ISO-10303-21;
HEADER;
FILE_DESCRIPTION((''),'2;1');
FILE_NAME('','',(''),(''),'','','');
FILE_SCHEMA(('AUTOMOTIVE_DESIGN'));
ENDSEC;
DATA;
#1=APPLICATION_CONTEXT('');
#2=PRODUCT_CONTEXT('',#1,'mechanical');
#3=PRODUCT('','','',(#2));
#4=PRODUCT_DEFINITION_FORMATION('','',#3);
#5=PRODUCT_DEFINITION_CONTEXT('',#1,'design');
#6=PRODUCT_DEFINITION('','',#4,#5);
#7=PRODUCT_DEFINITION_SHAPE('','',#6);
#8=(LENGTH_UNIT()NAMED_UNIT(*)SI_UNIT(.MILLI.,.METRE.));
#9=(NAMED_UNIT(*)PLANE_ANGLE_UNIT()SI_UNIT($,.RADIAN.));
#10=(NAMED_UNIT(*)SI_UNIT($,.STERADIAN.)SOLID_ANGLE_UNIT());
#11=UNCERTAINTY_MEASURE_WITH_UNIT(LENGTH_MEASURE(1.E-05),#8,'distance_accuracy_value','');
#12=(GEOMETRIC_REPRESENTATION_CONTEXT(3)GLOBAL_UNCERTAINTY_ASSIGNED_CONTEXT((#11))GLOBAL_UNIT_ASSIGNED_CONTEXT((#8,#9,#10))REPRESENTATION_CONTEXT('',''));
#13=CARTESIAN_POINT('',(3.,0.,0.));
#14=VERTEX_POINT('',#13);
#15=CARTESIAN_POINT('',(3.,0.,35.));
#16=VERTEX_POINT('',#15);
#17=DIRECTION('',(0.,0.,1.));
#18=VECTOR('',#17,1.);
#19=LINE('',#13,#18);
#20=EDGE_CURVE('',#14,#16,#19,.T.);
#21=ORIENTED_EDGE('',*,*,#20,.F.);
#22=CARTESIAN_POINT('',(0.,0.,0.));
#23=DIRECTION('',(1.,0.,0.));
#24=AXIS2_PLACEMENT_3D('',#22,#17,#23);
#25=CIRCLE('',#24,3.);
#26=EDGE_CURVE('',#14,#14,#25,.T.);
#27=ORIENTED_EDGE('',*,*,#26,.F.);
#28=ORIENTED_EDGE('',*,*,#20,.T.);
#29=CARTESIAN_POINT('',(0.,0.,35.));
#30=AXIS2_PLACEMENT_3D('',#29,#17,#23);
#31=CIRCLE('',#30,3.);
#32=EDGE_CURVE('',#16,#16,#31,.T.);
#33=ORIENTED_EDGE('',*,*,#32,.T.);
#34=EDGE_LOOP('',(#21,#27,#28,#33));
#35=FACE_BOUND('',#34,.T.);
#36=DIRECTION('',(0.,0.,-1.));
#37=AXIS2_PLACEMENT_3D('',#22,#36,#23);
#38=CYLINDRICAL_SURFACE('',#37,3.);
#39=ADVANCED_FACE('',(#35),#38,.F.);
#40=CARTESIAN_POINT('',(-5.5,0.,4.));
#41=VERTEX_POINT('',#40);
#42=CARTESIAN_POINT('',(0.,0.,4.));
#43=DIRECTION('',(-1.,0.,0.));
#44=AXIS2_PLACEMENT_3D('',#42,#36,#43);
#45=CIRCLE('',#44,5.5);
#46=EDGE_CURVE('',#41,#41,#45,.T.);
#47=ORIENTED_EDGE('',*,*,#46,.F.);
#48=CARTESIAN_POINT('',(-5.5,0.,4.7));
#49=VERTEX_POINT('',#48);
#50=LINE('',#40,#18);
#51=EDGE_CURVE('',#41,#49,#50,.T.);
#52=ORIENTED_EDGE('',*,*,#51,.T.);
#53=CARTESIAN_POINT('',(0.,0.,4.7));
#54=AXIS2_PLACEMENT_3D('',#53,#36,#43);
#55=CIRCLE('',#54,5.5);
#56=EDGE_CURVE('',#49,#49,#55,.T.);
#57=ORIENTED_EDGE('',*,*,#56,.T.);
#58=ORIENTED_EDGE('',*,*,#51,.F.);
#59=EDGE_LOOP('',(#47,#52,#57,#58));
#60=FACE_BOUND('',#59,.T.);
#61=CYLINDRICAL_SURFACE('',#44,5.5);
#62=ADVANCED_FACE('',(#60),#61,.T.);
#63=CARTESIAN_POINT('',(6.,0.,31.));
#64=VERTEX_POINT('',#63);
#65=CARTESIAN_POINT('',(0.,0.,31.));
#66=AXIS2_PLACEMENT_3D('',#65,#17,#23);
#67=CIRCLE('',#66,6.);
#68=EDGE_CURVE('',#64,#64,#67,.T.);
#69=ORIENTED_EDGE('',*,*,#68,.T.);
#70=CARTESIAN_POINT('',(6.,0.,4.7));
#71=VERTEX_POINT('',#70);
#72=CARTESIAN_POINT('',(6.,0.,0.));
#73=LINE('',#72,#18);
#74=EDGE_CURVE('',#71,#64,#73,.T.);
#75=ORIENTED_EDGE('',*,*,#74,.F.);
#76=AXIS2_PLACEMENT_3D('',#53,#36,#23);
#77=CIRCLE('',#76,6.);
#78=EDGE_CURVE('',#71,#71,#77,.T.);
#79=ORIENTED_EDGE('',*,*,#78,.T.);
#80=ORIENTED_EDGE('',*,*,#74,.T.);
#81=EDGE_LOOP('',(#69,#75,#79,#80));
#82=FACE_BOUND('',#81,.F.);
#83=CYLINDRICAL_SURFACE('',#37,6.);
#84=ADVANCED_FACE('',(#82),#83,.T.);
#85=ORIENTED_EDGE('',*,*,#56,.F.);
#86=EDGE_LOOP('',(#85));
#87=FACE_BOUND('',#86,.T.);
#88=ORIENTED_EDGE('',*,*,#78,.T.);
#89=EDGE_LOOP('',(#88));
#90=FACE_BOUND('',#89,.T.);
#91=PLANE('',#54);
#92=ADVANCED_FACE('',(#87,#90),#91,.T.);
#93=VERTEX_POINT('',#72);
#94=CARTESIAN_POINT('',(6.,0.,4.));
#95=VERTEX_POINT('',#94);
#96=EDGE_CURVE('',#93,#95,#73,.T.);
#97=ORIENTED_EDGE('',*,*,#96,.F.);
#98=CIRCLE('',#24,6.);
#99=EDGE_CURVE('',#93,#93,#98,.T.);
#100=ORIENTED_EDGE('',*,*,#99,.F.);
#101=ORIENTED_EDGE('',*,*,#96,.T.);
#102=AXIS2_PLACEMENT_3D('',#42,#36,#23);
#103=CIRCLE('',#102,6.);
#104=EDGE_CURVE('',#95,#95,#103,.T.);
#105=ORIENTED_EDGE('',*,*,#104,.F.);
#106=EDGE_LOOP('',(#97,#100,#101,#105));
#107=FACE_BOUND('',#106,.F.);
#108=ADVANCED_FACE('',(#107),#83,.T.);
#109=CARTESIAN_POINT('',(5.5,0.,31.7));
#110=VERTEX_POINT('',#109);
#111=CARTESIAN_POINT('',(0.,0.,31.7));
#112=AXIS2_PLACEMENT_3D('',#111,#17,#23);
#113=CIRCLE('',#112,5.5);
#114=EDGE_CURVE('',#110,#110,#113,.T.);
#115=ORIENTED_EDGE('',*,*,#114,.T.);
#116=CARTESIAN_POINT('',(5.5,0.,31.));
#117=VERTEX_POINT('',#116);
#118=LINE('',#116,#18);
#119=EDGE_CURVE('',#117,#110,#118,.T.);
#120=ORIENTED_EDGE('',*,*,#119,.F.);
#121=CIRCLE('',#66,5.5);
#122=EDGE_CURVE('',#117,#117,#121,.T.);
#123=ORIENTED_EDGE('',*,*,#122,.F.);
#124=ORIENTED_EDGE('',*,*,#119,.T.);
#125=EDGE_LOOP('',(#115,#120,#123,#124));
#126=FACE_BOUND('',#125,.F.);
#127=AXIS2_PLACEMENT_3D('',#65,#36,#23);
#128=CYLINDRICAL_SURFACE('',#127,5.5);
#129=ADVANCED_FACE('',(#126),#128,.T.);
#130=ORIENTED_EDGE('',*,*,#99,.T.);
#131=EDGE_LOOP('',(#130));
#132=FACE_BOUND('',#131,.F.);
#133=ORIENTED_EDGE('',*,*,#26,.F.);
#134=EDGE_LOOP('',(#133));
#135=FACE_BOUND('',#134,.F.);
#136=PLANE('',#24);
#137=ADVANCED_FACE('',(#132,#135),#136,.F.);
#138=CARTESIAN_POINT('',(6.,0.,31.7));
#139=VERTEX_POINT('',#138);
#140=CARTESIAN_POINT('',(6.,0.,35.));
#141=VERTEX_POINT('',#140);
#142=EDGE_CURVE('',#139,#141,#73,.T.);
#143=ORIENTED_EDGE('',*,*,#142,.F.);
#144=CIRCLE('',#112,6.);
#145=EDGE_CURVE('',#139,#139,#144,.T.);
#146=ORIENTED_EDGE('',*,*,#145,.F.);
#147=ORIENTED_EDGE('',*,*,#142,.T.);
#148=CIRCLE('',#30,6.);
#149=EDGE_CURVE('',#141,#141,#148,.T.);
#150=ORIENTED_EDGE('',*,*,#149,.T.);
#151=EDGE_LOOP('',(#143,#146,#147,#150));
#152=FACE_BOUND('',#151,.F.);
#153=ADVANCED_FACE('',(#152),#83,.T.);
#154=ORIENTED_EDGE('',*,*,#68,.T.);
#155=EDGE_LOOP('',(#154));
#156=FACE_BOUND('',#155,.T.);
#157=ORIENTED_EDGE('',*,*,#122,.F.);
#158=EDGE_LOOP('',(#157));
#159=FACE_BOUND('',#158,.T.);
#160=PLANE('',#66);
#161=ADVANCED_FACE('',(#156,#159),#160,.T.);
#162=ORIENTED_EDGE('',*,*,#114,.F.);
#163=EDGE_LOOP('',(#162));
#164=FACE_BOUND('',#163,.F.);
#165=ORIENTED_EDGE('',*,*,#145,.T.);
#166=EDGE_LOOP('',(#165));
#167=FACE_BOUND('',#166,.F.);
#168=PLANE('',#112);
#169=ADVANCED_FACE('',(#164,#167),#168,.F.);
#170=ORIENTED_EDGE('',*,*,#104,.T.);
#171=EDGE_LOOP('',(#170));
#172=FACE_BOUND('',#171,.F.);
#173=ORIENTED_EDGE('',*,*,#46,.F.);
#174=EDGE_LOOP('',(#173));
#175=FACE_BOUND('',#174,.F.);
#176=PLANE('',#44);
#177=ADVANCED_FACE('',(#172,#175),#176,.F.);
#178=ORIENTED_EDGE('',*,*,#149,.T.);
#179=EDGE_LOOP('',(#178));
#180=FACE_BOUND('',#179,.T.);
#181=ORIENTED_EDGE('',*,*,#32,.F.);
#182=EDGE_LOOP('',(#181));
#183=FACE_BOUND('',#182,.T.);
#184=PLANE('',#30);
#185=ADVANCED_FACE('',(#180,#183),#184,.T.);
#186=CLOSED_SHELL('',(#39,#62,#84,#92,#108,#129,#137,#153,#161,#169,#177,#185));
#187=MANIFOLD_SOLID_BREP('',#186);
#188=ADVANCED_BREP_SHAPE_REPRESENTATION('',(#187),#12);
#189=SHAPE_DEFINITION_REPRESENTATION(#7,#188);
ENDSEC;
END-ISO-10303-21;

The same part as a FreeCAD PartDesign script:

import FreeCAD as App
import Part
import Sketcher

doc = App.newDocument("Part")
body = doc.addObject("PartDesign::Body", "Body")

# Sketch on XY plane
sketch1 = body.newObject("Sketcher::SketchObject", "Sketch")
sketch1.AttachmentSupport = (doc.getObject("XY_Plane"), [""])
sketch1.MapMode = "FlatFace"
sketch1.addGeometry([
    Part.Circle(App.Vector(0, 0, 0), App.Vector(0, 0, 1), 6),
    Part.Circle(App.Vector(0, 0, 0), App.Vector(0, 0, 1), 3),
], False)
sketch1.addConstraint([
    Sketcher.Constraint("Coincident", 0, 3, -1, 1),
    Sketcher.Constraint("Coincident", 1, 3, -1, 1),
    Sketcher.Constraint("Diameter", 0, 12.0),
    Sketcher.Constraint("Diameter", 1, 6.0),
])
pad1 = body.newObject("PartDesign::Pad", "Pad")
pad1.Profile = sketch1
pad1.Length = 35

# Sketch on XY plane
sketch2 = body.newObject("Sketcher::SketchObject", "Sketch001")
sketch2.AttachmentSupport = (doc.getObject("XY_Plane"), [""])
sketch2.MapMode = "FlatFace"
sketch2.AttachmentOffset = App.Placement(App.Vector(0, 0, 31), App.Rotation())
sketch2.addGeometry([
    Part.Circle(App.Vector(0, 0, 0), App.Vector(0, 0, 1), 6),
    Part.Circle(App.Vector(0, 0, 0), App.Vector(0, 0, 1), 5.5),
], False)
sketch2.addConstraint([
    Sketcher.Constraint("Coincident", 0, 3, -1, 1),
    Sketcher.Constraint("Coincident", 1, 3, -1, 1),
    Sketcher.Constraint("Diameter", 1, 11.0),
    Sketcher.Constraint("Diameter", 0, 12.0),
])
pocket1 = body.newObject("PartDesign::Pocket", "Pocket")
pocket1.Profile = sketch2
pocket1.Length = 0.7
pocket1.Reversed = True

# Sketch on XY plane
sketch3 = body.newObject("Sketcher::SketchObject", "Sketch002")
sketch3.AttachmentSupport = (doc.getObject("XY_Plane"), [""])
sketch3.MapMode = "FlatFace"
sketch3.AttachmentOffset = App.Placement(App.Vector(0, 0, 4), App.Rotation())
sketch3.addGeometry([
    Part.Circle(App.Vector(0, 0, 0), App.Vector(0, 0, 1), 6),
    Part.Circle(App.Vector(0, 0, 0), App.Vector(0, 0, 1), 5.5),
], False)
sketch3.addConstraint([
    Sketcher.Constraint("Coincident", 0, 3, -1, 1),
    Sketcher.Constraint("Coincident", 1, 3, -1, 1),
    Sketcher.Constraint("Diameter", 1, 11.0),
    Sketcher.Constraint("Diameter", 0, 12.0),
])
pocket2 = body.newObject("PartDesign::Pocket", "Pocket001")
pocket2.Profile = sketch3
pocket2.Length = 0.7
pocket2.Reversed = True

doc.recompute()
